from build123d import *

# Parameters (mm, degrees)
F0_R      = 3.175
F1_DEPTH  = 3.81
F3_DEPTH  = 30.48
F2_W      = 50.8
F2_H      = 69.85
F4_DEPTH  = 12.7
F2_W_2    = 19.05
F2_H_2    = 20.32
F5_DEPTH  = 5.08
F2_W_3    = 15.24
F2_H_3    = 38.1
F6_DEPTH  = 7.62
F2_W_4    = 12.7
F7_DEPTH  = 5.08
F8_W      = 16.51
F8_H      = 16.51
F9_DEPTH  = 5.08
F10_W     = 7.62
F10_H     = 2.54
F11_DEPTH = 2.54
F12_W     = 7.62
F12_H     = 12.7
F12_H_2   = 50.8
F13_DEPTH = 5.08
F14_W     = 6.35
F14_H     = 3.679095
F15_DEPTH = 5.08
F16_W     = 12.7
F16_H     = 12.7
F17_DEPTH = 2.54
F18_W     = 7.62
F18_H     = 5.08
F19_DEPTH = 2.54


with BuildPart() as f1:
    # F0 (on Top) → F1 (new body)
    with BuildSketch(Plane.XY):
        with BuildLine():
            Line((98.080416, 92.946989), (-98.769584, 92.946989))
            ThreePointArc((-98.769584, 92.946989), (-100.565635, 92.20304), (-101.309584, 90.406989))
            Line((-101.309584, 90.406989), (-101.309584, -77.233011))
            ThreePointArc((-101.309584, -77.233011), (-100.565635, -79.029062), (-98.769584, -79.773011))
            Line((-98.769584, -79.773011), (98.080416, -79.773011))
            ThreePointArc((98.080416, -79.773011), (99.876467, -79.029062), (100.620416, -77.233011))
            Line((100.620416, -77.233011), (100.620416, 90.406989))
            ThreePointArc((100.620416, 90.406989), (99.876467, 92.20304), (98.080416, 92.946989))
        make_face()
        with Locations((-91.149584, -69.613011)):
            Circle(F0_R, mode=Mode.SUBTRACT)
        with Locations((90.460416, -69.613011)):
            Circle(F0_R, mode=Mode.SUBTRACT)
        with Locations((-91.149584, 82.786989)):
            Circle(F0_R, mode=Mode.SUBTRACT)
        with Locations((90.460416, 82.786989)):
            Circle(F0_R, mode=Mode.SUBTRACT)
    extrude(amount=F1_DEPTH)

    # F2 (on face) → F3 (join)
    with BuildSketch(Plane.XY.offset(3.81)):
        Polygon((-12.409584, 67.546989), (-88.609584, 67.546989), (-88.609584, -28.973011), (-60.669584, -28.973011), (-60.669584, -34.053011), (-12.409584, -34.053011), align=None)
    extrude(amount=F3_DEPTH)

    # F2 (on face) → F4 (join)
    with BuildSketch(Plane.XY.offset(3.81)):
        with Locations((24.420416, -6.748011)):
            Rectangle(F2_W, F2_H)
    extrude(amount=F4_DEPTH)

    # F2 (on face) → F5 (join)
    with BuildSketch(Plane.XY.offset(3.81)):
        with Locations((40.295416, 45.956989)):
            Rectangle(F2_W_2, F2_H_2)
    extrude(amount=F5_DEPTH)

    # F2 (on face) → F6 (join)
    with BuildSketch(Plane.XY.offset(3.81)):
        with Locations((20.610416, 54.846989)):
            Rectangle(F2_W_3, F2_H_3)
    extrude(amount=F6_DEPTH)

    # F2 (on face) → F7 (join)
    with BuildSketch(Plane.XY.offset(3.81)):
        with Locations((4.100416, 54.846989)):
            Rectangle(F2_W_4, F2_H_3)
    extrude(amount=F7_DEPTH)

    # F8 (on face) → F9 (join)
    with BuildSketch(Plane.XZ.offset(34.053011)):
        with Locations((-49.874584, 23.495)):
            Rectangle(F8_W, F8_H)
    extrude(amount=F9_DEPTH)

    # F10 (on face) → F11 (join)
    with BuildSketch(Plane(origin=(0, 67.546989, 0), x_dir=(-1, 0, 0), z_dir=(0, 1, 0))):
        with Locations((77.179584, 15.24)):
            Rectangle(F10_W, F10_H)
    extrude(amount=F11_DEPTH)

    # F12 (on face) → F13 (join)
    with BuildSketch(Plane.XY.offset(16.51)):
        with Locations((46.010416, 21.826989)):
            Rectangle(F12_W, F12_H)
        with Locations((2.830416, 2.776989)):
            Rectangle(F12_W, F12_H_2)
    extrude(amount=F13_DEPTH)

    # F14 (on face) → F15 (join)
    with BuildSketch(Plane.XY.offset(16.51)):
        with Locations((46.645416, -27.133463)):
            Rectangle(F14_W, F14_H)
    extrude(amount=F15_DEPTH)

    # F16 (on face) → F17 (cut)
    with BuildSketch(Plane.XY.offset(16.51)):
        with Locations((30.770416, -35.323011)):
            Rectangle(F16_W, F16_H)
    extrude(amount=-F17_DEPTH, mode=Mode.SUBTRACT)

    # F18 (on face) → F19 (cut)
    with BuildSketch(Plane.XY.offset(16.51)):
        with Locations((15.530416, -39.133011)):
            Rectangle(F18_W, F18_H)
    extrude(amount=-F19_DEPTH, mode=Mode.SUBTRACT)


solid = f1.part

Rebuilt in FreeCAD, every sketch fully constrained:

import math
import FreeCAD as App
import Part
import Sketcher
Q = App.Units.Quantity


def add_polygon(sketch, points):
    """Adds a closed chain of lines whose ends are joined by coincident constraints."""
    first, n = sketch.GeometryCount, len(points)
    for a, b in zip(points, points[1:] + points[:1]):
        sketch.addGeometry(Part.LineSegment(App.Vector(*a, 0), App.Vector(*b, 0)), False)
    for i in range(n):
        sketch.addConstraint(Sketcher.Constraint("Coincident", first + i, 2, first + (i + 1) % n, 1))

doc = App.newDocument("Part")
params = doc.addObject("Spreadsheet::Sheet", "Params")
for row, (alias, value) in enumerate([
    ("sketch1_radius", "0.1 in"),
    ("sketch1_diameter", "0.25 in"),
    ("sketch1_height", "6.6 in"),
    ("sketch1_width", "7.75 in"),
    ("pad1_length", "0.15 in"),
    ("sketch2_width", "3 in"),
    ("sketch2_height", "4 in"),
    ("sketch2_width2", "1.1 in"),
    ("sketch2_height2", "3.8 in"),
    ("pad2_length", "1.2 in"),
    ("sketch3_width", "2 in"),
    ("sketch3_height", "2.75 in"),
    ("pad3_length", "0.5 in"),
    ("sketch4_height", "0.8 in"),
    ("sketch4_width", "0.75 in"),
    ("pad4_length", "0.2 in"),
    ("sketch5_width", "0.6 in"),
    ("sketch5_height", "1.5 in"),
    ("pad5_length", "0.3 in"),
    ("sketch6_width", "0.5 in"),
    ("sketch6_height", "1.5 in"),
    ("pad6_length", "0.2 in"),
    ("sketch7_width", "0.65 in"),
    ("pad7_length", "0.2 in"),
    ("sketch8_width", "0.3 in"),
    ("sketch8_height", "0.1 in"),
    ("pad8_length", "0.1 in"),
    ("sketch9_height", "2 in"),
    ("sketch9_width", "0.3 in"),
    ("sketch9_height2", "0.5 in"),
    ("pad9_length", "0.2 in"),
    ("sketch10_width", "0.25 in"),
    ("pad10_length", "0.2 in"),
    ("sketch11_width", "0.5 in"),
    ("pocket1_length", "0.1 in"),
    ("sketch12_width", "0.3 in"),
    ("sketch12_height", "0.2 in"),
    ("pocket2_length", "0.1 in"),
], start=1):
    params.set(f"A{row}", alias)
    params.set(f"B{row}", "=" + value)
    params.setAlias(f"B{row}", alias)

body = doc.addObject("PartDesign::Body", "Body")

sketch1 = body.newObject("Sketcher::SketchObject", "Sketch")
sketch1.AttachmentSupport = (doc.getObject("XY_Plane"), [""])
sketch1.MapMode = "FlatFace"
sketch1.addGeometry(Part.LineSegment(App.Vector(98.1, 92.9, 0), App.Vector(-98.8, 92.9, 0)), False)
sketch1.addGeometry(Part.ArcOfCircle(Part.Circle(App.Vector(-98.8, 90.4, 0), App.Vector(0, 0, 1), 2.5), math.radians(90), math.radians(180)), False)
sketch1.addGeometry(Part.LineSegment(App.Vector(-101.3, 90.4, 0), App.Vector(-101.3, -77.2, 0)), False)
sketch1.addGeometry(Part.ArcOfCircle(Part.Circle(App.Vector(-98.8, -77.2, 0), App.Vector(0, 0, 1), 2.5), math.radians(-180), math.radians(-90)), False)
sketch1.addGeometry(Part.LineSegment(App.Vector(-98.8, -79.8, 0), App.Vector(98.1, -79.8, 0)), False)
sketch1.addGeometry(Part.ArcOfCircle(Part.Circle(App.Vector(98.1, -77.2, 0), App.Vector(0, 0, 1), 2.5), math.radians(-90), math.radians(0)), False)
sketch1.addGeometry(Part.LineSegment(App.Vector(100.6, -77.2, 0), App.Vector(100.6, 90.4, 0)), False)
sketch1.addGeometry(Part.ArcOfCircle(Part.Circle(App.Vector(98.1, 90.4, 0), App.Vector(0, 0, 1), 2.5), math.radians(0), math.radians(90)), False)
sketch1.addGeometry(Part.Circle(App.Vector(-91.1, -69.6, 0), App.Vector(0, 0, 1), 3.2), False)
sketch1.addGeometry(Part.Circle(App.Vector(90.5, -69.6, 0), App.Vector(0, 0, 1), 3.2), False)
sketch1.addGeometry(Part.Circle(App.Vector(-91.1, 82.8, 0), App.Vector(0, 0, 1), 3.2), False)
sketch1.addGeometry(Part.Circle(App.Vector(90.5, 82.8, 0), App.Vector(0, 0, 1), 3.2), False)
sketch1.addConstraint(Sketcher.Constraint("Tangent", 0, 2, 1, 1))
sketch1.addConstraint(Sketcher.Constraint("Tangent", 1, 2, 2, 1))
sketch1.addConstraint(Sketcher.Constraint("Tangent", 2, 2, 3, 1))
sketch1.addConstraint(Sketcher.Constraint("Tangent", 3, 2, 4, 1))
sketch1.addConstraint(Sketcher.Constraint("Tangent", 4, 2, 5, 1))
sketch1.addConstraint(Sketcher.Constraint("Tangent", 5, 2, 6, 1))
sketch1.addConstraint(Sketcher.Constraint("Tangent", 6, 2, 7, 1))
sketch1.addConstraint(Sketcher.Constraint("Tangent", 7, 2, 0, 1))
sketch1.addConstraint(Sketcher.Constraint("Horizontal", 0))
sketch1.addConstraint(Sketcher.Constraint("Vertical", 2))
sketch1.addConstraint(Sketcher.Constraint("Horizontal", 4))
sketch1.addConstraint(Sketcher.Constraint("Vertical", 6))
sketch1.addConstraint(Sketcher.Constraint("Equal", 1, 3))
sketch1.addConstraint(Sketcher.Constraint("Equal", 3, 5))
sketch1.addConstraint(Sketcher.Constraint("Equal", 5, 7))
sketch1.addConstraint(Sketcher.Constraint("Equal", 8, 9))
sketch1.addConstraint(Sketcher.Constraint("Equal", 9, 10))
sketch1.addConstraint(Sketcher.Constraint("Equal", 10, 11))
sketch1.addConstraint(Sketcher.Constraint("Horizontal", 8, 3, 9, 3))
sketch1.addConstraint(Sketcher.Constraint("Horizontal", 10, 3, 11, 3))
sketch1.addConstraint(Sketcher.Constraint("Vertical", 8, 3, 10, 3))
sketch1.addConstraint(Sketcher.Constraint("Vertical", 9, 3, 11, 3))
sketch1.addConstraint(Sketcher.Constraint("Radius", 1, Q("0.1 in")))
sketch1.addConstraint(Sketcher.Constraint("Diameter", 8, Q("0.25 in")))
sketch1.addConstraint(Sketcher.Constraint("DistanceY", 2, 2, 2, 1, Q("6.6 in")))
sketch1.addConstraint(Sketcher.Constraint("DistanceY", 8, 3, 10, 3, Q("6 in")))
sketch1.addConstraint(Sketcher.Constraint("DistanceX", 0, 2, 0, 1, Q("7.75 in")))
sketch1.addConstraint(Sketcher.Constraint("DistanceX", 3, 3, 8, 3, Q("0.3 in")))
sketch1.addConstraint(Sketcher.Constraint("DistanceY", 3, 3, 8, 3, Q("0.3 in")))
sketch1.addConstraint(Sketcher.Constraint("DistanceX", 9, 3, 5, 3, Q("0.3 in")))
sketch1.addConstraint(Sketcher.Constraint("DistanceY", -1, 1, 1, 3, 90.406988))
sketch1.addConstraint(Sketcher.Constraint("DistanceX", 1, 3, -1, 1, 98.769583))
sketch1.setExpression("Constraints[22]", "Params.sketch1_radius")
sketch1.setExpression("Constraints[23]", "Params.sketch1_diameter")
sketch1.setExpression("Constraints[24]", "Params.sketch1_height")
sketch1.setExpression("Constraints[26]", "Params.sketch1_width")
pad1 = body.newObject("PartDesign::Pad", "Pad")
pad1.Profile = sketch1
pad1.setExpression("Length", "Params.pad1_length")

sketch2 = body.newObject("Sketcher::SketchObject", "Sketch001")
sketch2.AttachmentSupport = (doc.getObject("XY_Plane"), [""])
sketch2.MapMode = "FlatFace"
sketch2.AttachmentOffset = App.Placement(App.Vector(0, 0, 0.15 * 25.4), App.Rotation())
add_polygon(sketch2, [(-12, 68), (-89, 68), (-89, -29), (-61, -29), (-61, -34), (-12, -34)])
sketch2.addConstraint(Sketcher.Constraint("Horizontal", 0))
sketch2.addConstraint(Sketcher.Constraint("Vertical", 1))
sketch2.addConstraint(Sketcher.Constraint("Horizontal", 2))
sketch2.addConstraint(Sketcher.Constraint("Vertical", 3))
sketch2.addConstraint(Sketcher.Constraint("Horizontal", 4))
sketch2.addConstraint(Sketcher.Constraint("Vertical", 5))
sketch2.addConstraint(Sketcher.Constraint("DistanceX", 0, 2, 0, 1, Q("3 in")))
sketch2.addConstraint(Sketcher.Constraint("DistanceY", 5, 1, 5, 2, Q("4 in")))
sketch2.addConstraint(Sketcher.Constraint("DistanceX", 2, 1, 2, 2, Q("1.1 in")))
sketch2.addConstraint(Sketcher.Constraint("DistanceY", 1, 2, 1, 1, Q("3.8 in")))
sketch2.addConstraint(Sketcher.Constraint("DistanceY", -1, 1, 0, 2, 67.546989))
sketch2.addConstraint(Sketcher.Constraint("DistanceX", 0, 2, -1, 1, 88.609584))
sketch2.setExpression("Constraints[12]", "Params.sketch2_width")
sketch2.setExpression("Constraints[13]", "Params.sketch2_height")
sketch2.setExpression("Constraints[14]", "Params.sketch2_width2")
sketch2.setExpression("Constraints[15]", "Params.sketch2_height2")
pad2 = body.newObject("PartDesign::Pad", "Pad001")
pad2.Profile = sketch2
pad2.setExpression("Length", "Params.pad2_length")

sketch3 = body.newObject("Sketcher::SketchObject", "Sketch002")
sketch3.AttachmentSupport = (doc.getObject("XY_Plane"), [""])
sketch3.MapMode = "FlatFace"
sketch3.AttachmentOffset = App.Placement(App.Vector(0, 0, 0.15 * 25.4), App.Rotation())
add_polygon(sketch3, [(-1, 28), (-1, -42), (50, -42), (50, 28)])
sketch3.addConstraint(Sketcher.Constraint("Vertical", 0))
sketch3.addConstraint(Sketcher.Constraint("Horizontal", 1))
sketch3.addConstraint(Sketcher.Constraint("Vertical", 2))
sketch3.addConstraint(Sketcher.Constraint("Horizontal", 3))
sketch3.addConstraint(Sketcher.Constraint("DistanceX", 1, 1, 1, 2, Q("2 in")))
sketch3.addConstraint(Sketcher.Constraint("DistanceY", 0, 2, 0, 1, Q("2.75 in")))
sketch3.addConstraint(Sketcher.Constraint("DistanceY", 0, 2, -1, 1, 41.673011))
sketch3.addConstraint(Sketcher.Constraint("DistanceX", 0, 2, -1, 1, 0.979584))
sketch3.setExpression("Constraints[8]", "Params.sketch3_width")
sketch3.setExpression("Constraints[9]", "Params.sketch3_height")
pad3 = body.newObject("PartDesign::Pad", "Pad002")
pad3.Profile = sketch3
pad3.setExpression("Length", "Params.pad3_length")

sketch4 = body.newObject("Sketcher::SketchObject", "Sketch003")
sketch4.AttachmentSupport = (doc.getObject("XY_Plane"), [""])
sketch4.MapMode = "FlatFace"
sketch4.AttachmentOffset = App.Placement(App.Vector(0, 0, 0.15 * 25.4), App.Rotation())
add_polygon(sketch4, [(31, 56), (31, 36), (50, 36), (50, 56)])
sketch4.addConstraint(Sketcher.Constraint("Vertical", 0))
sketch4.addConstraint(Sketcher.Constraint("Horizontal", 1))
sketch4.addConstraint(Sketcher.Constraint("Vertical", 2))
sketch4.addConstraint(Sketcher.Constraint("Horizontal", 3))
sketch4.addConstraint(Sketcher.Constraint("DistanceY", 0, 2, 0, 1, Q("0.8 in")))
sketch4.addConstraint(Sketcher.Constraint("DistanceX", 1, 1, 1, 2, Q("0.75 in")))
sketch4.addConstraint(Sketcher.Constraint("DistanceY", -1, 1, 0, 2, 35.796989))
sketch4.addConstraint(Sketcher.Constraint("DistanceX", -1, 1, 0, 2, 30.770416))
sketch4.setExpression("Constraints[8]", "Params.sketch4_height")
sketch4.setExpression("Constraints[9]", "Params.sketch4_width")
pad4 = body.newObject("PartDesign::Pad", "Pad003")
pad4.Profile = sketch4
pad4.setExpression("Length", "Params.pad4_length")

sketch5 = body.newObject("Sketcher::SketchObject", "Sketch004")
sketch5.AttachmentSupport = (doc.getObject("XY_Plane"), [""])
sketch5.MapMode = "FlatFace"
sketch5.AttachmentOffset = App.Placement(App.Vector(0, 0, 0.15 * 25.4), App.Rotation())
add_polygon(sketch5, [(13, 74), (13, 36), (28, 36), (28, 74)])
sketch5.addConstraint(Sketcher.Constraint("Vertical", 0))
sketch5.addConstraint(Sketcher.Constraint("Horizontal", 1))
sketch5.addConstraint(Sketcher.Constraint("Vertical", 2))
sketch5.addConstraint(Sketcher.Constraint("Horizontal", 3))
sketch5.addConstraint(Sketcher.Constraint("DistanceX", 1, 1, 1, 2, Q("0.6 in")))
sketch5.addConstraint(Sketcher.Constraint("DistanceY", 0, 2, 0, 1, Q("1.5 in")))
sketch5.addConstraint(Sketcher.Constraint("DistanceY", -1, 1, 0, 2, 35.796989))
sketch5.addConstraint(Sketcher.Constraint("DistanceX", -1, 1, 0, 2, 12.990416))
sketch5.setExpression("Constraints[8]", "Params.sketch5_width")
sketch5.setExpression("Constraints[9]", "Params.sketch5_height")
pad5 = body.newObject("PartDesign::Pad", "Pad004")
pad5.Profile = sketch5
pad5.setExpression("Length", "Params.pad5_length")

sketch6 = body.newObject("Sketcher::SketchObject", "Sketch005")
sketch6.AttachmentSupport = (doc.getObject("XY_Plane"), [""])
sketch6.MapMode = "FlatFace"
sketch6.AttachmentOffset = App.Placement(App.Vector(0, 0, 0.15 * 25.4), App.Rotation())
add_polygon(sketch6, [(-2, 74), (-2, 36), (10, 36), (10, 74)])
sketch6.addConstraint(Sketcher.Constraint("Vertical", 0))
sketch6.addConstraint(Sketcher.Constraint("Horizontal", 1))
sketch6.addConstraint(Sketcher.Constraint("Vertical", 2))
sketch6.addConstraint(Sketcher.Constraint("Horizontal", 3))
sketch6.addConstraint(Sketcher.Constraint("DistanceX", 1, 1, 1, 2, Q("0.5 in")))
sketch6.addConstraint(Sketcher.Constraint("DistanceY", 0, 2, 0, 1, Q("1.5 in")))
sketch6.addConstraint(Sketcher.Constraint("DistanceY", -1, 1, 0, 2, 35.796989))
sketch6.addConstraint(Sketcher.Constraint("DistanceX", 0, 2, -1, 1, 2.249584))
sketch6.setExpression("Constraints[8]", "Params.sketch6_width")
sketch6.setExpression("Constraints[9]", "Params.sketch6_height")
pad6 = body.newObject("PartDesign::Pad", "Pad005")
pad6.Profile = sketch6
pad6.setExpression("Length", "Params.pad6_length")

sketch7 = body.newObject("Sketcher::SketchObject", "Sketch006")
sketch7.AttachmentSupport = (doc.getObject("XZ_Plane"), [""])
sketch7.MapMode = "FlatFace"
sketch7.AttachmentOffset = App.Placement(App.Vector(0, 0, 34.053011), App.Rotation())
add_polygon(sketch7, [(-58, 32), (-58, 15), (-42, 15), (-42, 32)])
sketch7.addConstraint(Sketcher.Constraint("Vertical", 0))
sketch7.addConstraint(Sketcher.Constraint("Horizontal", 1))
sketch7.addConstraint(Sketcher.Constraint("Vertical", 2))
sketch7.addConstraint(Sketcher.Constraint("Horizontal", 3))
sketch7.addConstraint(Sketcher.Constraint("Equal", 3, 0))
sketch7.addConstraint(Sketcher.Constraint("DistanceX", 1, 1, 1, 2, Q("0.65 in")))
sketch7.addConstraint(Sketcher.Constraint("DistanceY", -1, 1, 0, 2, Q("0.6 in")))
sketch7.addConstraint(Sketcher.Constraint("DistanceX", 0, 2, -1, 1, 58.129584))
sketch7.setExpression("Constraints[9]", "Params.sketch7_width")
pad7 = body.newObject("PartDesign::Pad", "Pad006")
pad7.Profile = sketch7
pad7.setExpression("Length", "Params.pad7_length")

sketch8 = body.newObject("Sketcher::SketchObject", "Sketch007")
sketch8.AttachmentSupport = (doc.getObject("XZ_Plane"), [""])
sketch8.MapMode = "FlatFace"
sketch8.AttachmentOffset = App.Placement(App.Vector(0, 0, -67.546989), App.Rotation())
add_polygon(sketch8, [(-73.4, 16.5), (-73.4, 14), (-81, 14), (-81, 16.5)])
sketch8.addConstraint(Sketcher.Constraint("Vertical", 0))
sketch8.addConstraint(Sketcher.Constraint("Horizontal", 1))
sketch8.addConstraint(Sketcher.Constraint("Vertical", 2))
sketch8.addConstraint(Sketcher.Constraint("Horizontal", 3))
sketch8.addConstraint(Sketcher.Constraint("DistanceX", 1, 2, 1, 1, Q("0.3 in")))
sketch8.addConstraint(Sketcher.Constraint("DistanceY", 0, 2, 0, 1, Q("0.1 in")))
sketch8.addConstraint(Sketcher.Constraint("DistanceY", -1, 1, 0, 2, Q("0.55 in")))
sketch8.addConstraint(Sketcher.Constraint("DistanceX", 0, 2, -1, 1, 73.369584))
sketch8.setExpression("Constraints[8]", "Params.sketch8_width")
sketch8.setExpression("Constraints[9]", "Params.sketch8_height")
pad8 = body.newObject("PartDesign::Pad", "Pad007")
pad8.Profile = sketch8
pad8.setExpression("Length", "Params.pad8_length")
pad8.Reversed = True

sketch9 = body.newObject("Sketcher::SketchObject", "Sketch008")
sketch9.AttachmentSupport = (doc.getObject("XY_Plane"), [""])
sketch9.MapMode = "FlatFace"
sketch9.AttachmentOffset = App.Placement(App.Vector(0, 0, 0.65 * 25.4), App.Rotation())
add_polygon(sketch9, [(42, 28), (42, 15), (50, 15), (50, 28)])
add_polygon(sketch9, [(-1, 28), (-1, -23), (7, -23), (7, 28)])
sketch9.addConstraint(Sketcher.Constraint("Vertical", 0))
sketch9.addConstraint(Sketcher.Constraint("Horizontal", 1))
sketch9.addConstraint(Sketcher.Constraint("Vertical", 2))
sketch9.addConstraint(Sketcher.Constraint("Horizontal", 3))
sketch9.addConstraint(Sketcher.Constraint("Vertical", 4))
sketch9.addConstraint(Sketcher.Constraint("Horizontal", 5))
sketch9.addConstraint(Sketcher.Constraint("Vertical", 6))
sketch9.addConstraint(Sketcher.Constraint("Horizontal", 7))
sketch9.addConstraint(Sketcher.Constraint("Horizontal", 3, 2, 6, 2))
sketch9.addConstraint(Sketcher.Constraint("Equal", 3, 5))
sketch9.addConstraint(Sketcher.Constraint("DistanceY", 4, 2, 4, 1, Q("2 in")))
sketch9.addConstraint(Sketcher.Constraint("DistanceX", 1, 1, 1, 2, Q("0.3 in")))
sketch9.addConstraint(Sketcher.Constraint("DistanceY", 0, 2, 0, 1, Q("0.5 in")))
sketch9.addConstraint(Sketcher.Constraint("DistanceX", 4, 2, 1, 2, Q("2 in")))
sketch9.addConstraint(Sketcher.Constraint("DistanceY", -1, 1, 0, 2, 15.476989))
sketch9.addConstraint(Sketcher.Constraint("DistanceX", -1, 1, 0, 2, 42.200416))
sketch9.setExpression("Constraints[18]", "Params.sketch9_height")
sketch9.setExpression("Constraints[19]", "Params.sketch9_width")
sketch9.setExpression("Constraints[20]", "Params.sketch9_height2")
pad9 = body.newObject("PartDesign::Pad", "Pad008")
pad9.Profile = sketch9
pad9.setExpression("Length", "Params.pad9_length")

sketch10 = body.newObject("Sketcher::SketchObject", "Sketch009")
sketch10.AttachmentSupport = (doc.getObject("XY_Plane"), [""])
sketch10.MapMode = "FlatFace"
sketch10.AttachmentOffset = App.Placement(App.Vector(0, 0, 0.65 * 25.4), App.Rotation())
add_polygon(sketch10, [(43.5, -25.3), (43.5, -29), (49.8, -29), (49.8, -25.3)])
sketch10.addConstraint(Sketcher.Constraint("Vertical", 0))
sketch10.addConstraint(Sketcher.Constraint("Horizontal", 1))
sketch10.addConstraint(Sketcher.Constraint("Vertical", 2))
sketch10.addConstraint(Sketcher.Constraint("Horizontal", 3))
sketch10.addConstraint(Sketcher.Constraint("DistanceX", 1, 1, 1, 2, Q("0.25 in")))
sketch10.addConstraint(Sketcher.Constraint("DistanceY", 0, 2, 0, 1, 3.679095))
sketch10.addConstraint(Sketcher.Constraint("DistanceY", 0, 2, -1, 1, 28.973011))
sketch10.addConstraint(Sketcher.Constraint("DistanceX", -1, 1, 0, 2, 43.470416))
sketch10.setExpression("Constraints[8]", "Params.sketch10_width")
pad10 = body.newObject("PartDesign::Pad", "Pad009")
pad10.Profile = sketch10
pad10.setExpression("Length", "Params.pad10_length")

sketch11 = body.newObject("Sketcher::SketchObject", "Sketch010")
sketch11.AttachmentSupport = (doc.getObject("XY_Plane"), [""])
sketch11.MapMode = "FlatFace"
sketch11.AttachmentOffset = App.Placement(App.Vector(0, 0, 0.65 * 25.4), App.Rotation())
add_polygon(sketch11, [(24, -29), (24, -42), (37, -42), (37, -29)])
sketch11.addConstraint(Sketcher.Constraint("Vertical", 0))
sketch11.addConstraint(Sketcher.Constraint("Horizontal", 1))
sketch11.addConstraint(Sketcher.Constraint("Vertical", 2))
sketch11.addConstraint(Sketcher.Constraint("Horizontal", 3))
sketch11.addConstraint(Sketcher.Constraint("Equal", 3, 0))
sketch11.addConstraint(Sketcher.Constraint("DistanceX", 1, 1, 1, 2, Q("0.5 in")))
sketch11.addConstraint(Sketcher.Constraint("DistanceY", 0, 2, -1, 1, 41.673011))
sketch11.addConstraint(Sketcher.Constraint("DistanceX", -1, 1, 0, 2, 24.420416))
sketch11.setExpression("Constraints[9]", "Params.sketch11_width")
pocket1 = body.newObject("PartDesign::Pocket", "Pocket")
pocket1.Profile = sketch11
pocket1.setExpression("Length", "Params.pocket1_length")

sketch12 = body.newObject("Sketcher::SketchObject", "Sketch011")
sketch12.AttachmentSupport = (doc.getObject("XY_Plane"), [""])
sketch12.MapMode = "FlatFace"
sketch12.AttachmentOffset = App.Placement(App.Vector(0, 0, 0.65 * 25.4), App.Rotation())
add_polygon(sketch12, [(12, -37), (12, -42), (19, -42), (19, -37)])
sketch12.addConstraint(Sketcher.Constraint("Vertical", 0))
sketch12.addConstraint(Sketcher.Constraint("Horizontal", 1))
sketch12.addConstraint(Sketcher.Constraint("Vertical", 2))
sketch12.addConstraint(Sketcher.Constraint("Horizontal", 3))
sketch12.addConstraint(Sketcher.Constraint("DistanceX", 1, 1, 1, 2, Q("0.3 in")))
sketch12.addConstraint(Sketcher.Constraint("DistanceY", 0, 2, 0, 1, Q("0.2 in")))
sketch12.addConstraint(Sketcher.Constraint("DistanceY", 0, 2, -1, 1, 41.673011))
sketch12.addConstraint(Sketcher.Constraint("DistanceX", -1, 1, 0, 2, 11.720416))
sketch12.setExpression("Constraints[8]", "Params.sketch12_width")
sketch12.setExpression("Constraints[9]", "Params.sketch12_height")
pocket2 = body.newObject("PartDesign::Pocket", "Pocket001")
pocket2.Profile = sketch12
pocket2.setExpression("Length", "Params.pocket2_length")

doc.recompute()
